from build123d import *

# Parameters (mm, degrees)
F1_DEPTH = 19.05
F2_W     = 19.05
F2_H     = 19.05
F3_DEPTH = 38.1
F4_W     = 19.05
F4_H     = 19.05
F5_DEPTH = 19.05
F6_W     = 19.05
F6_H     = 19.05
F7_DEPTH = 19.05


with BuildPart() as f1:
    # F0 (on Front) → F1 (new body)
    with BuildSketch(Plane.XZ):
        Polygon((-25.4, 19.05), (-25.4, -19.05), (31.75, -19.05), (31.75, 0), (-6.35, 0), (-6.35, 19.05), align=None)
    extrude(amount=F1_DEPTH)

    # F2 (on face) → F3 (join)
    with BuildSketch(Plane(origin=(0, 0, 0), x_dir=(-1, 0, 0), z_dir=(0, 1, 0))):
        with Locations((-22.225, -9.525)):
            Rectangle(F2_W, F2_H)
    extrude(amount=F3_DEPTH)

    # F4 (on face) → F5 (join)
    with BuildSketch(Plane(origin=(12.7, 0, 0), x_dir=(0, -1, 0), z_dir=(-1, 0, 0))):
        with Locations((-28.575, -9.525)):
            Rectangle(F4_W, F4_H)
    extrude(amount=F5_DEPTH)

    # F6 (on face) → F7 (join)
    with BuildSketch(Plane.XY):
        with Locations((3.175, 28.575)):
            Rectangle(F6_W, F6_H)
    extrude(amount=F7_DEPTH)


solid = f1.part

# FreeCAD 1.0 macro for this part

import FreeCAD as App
import Part
import Sketcher

V = App.Vector
Q = App.Units.Quantity


def add_polygon(sketch, points):
    """Adds a closed chain of lines whose ends are joined by coincident constraints."""
    first, n = sketch.GeometryCount, len(points)
    for a, b in zip(points, points[1:] + points[:1]):
        sketch.addGeometry(Part.LineSegment(App.Vector(*a, 0), App.Vector(*b, 0)), False)
    for i in range(n):
        sketch.addConstraint(Sketcher.Constraint("Coincident", first + i, 2, first + (i + 1) % n, 1))

doc = App.newDocument("Part")
body = doc.addObject("PartDesign::Body", "Body")

sketch1 = doc.addObject("Sketcher::SketchObject", "Sketch")
body.addObject(sketch1)
sketch1.AttachmentSupport = (doc.XZ_Plane, [""])
sketch1.MapMode = "FlatFace"
add_polygon(sketch1, [(-25, 19), (-25, -19), (32, -19), (32, 0), (-6, 0), (-6, 19)])
sketch1.addConstraint([
    Sketcher.Constraint("Vertical", 0),
    Sketcher.Constraint("Horizontal", 1),
    Sketcher.Constraint("Vertical", 2),
    Sketcher.Constraint("Horizontal", 3),
    Sketcher.Constraint("Vertical", 4),
    Sketcher.Constraint("Horizontal", 5),
    Sketcher.Constraint("PointOnObject", 2, 2, -1),
    Sketcher.Constraint("Equal", 3, 0),
    Sketcher.Constraint("Equal", 5, 2),
    Sketcher.Constraint("Equal", 2, 4),
    Sketcher.Constraint("DistanceX", 3, 2, 3, 1, Q("1.5 in")),
    Sketcher.Constraint("DistanceX", 0, 2, -1, 1, Q("1 in")),
])
pad1 = doc.addObject("PartDesign::Pad", "Pad")
body.addObject(pad1)
pad1.Profile = sketch1
pad1.Length = Q("0.75 in")

sketch2 = doc.addObject("Sketcher::SketchObject", "Sketch001")
body.addObject(sketch2)
sketch2.AttachmentSupport = (doc.XZ_Plane, [""])
sketch2.MapMode = "FlatFace"
add_polygon(sketch2, [(32, 0), (32, -19), (13, -19), (13, 0)])
sketch2.addConstraint([
    Sketcher.Constraint("Vertical", 0),
    Sketcher.Constraint("Horizontal", 1),
    Sketcher.Constraint("Vertical", 2),
    Sketcher.Constraint("Horizontal", 3),
    Sketcher.Constraint("PointOnObject", 2, 2, -1),
    Sketcher.Constraint("Equal", 3, 0),
    Sketcher.Constraint("DistanceX", 1, 2, 1, 1, Q("0.75 in")),
    Sketcher.Constraint("DistanceX", -1, 1, 1, 2, Q("0.5 in")),
])
pad2 = doc.addObject("PartDesign::Pad", "Pad001")
body.addObject(pad2)
pad2.Profile = sketch2
pad2.Length = Q("1.5 in")
pad2.Reversed = True

sketch3 = doc.addObject("Sketcher::SketchObject", "Sketch002")
body.addObject(sketch3)
sketch3.AttachmentSupport = (doc.YZ_Plane, [""])
sketch3.MapMode = "FlatFace"
sketch3.AttachmentOffset = App.Placement(V(0, 0, 0.5 * 25.4), App.Rotation())
add_polygon(sketch3, [(38, 0), (38, -19), (19, -19), (19, 0)])
sketch3.addConstraint([
    Sketcher.Constraint("Vertical", 0),
    Sketcher.Constraint("Horizontal", 1),
    Sketcher.Constraint("Vertical", 2),
    Sketcher.Constraint("Horizontal", 3),
    Sketcher.Constraint("PointOnObject", 2, 2, -1),
    Sketcher.Constraint("Equal", 3, 0),
    Sketcher.Constraint("DistanceX", 1, 2, 1, 1, Q("0.75 in")),
    Sketcher.Constraint("DistanceX", -1, 1, 0, 2, Q("1.5 in")),
])
pad3 = doc.addObject("PartDesign::Pad", "Pad002")
body.addObject(pad3)
pad3.Profile = sketch3
pad3.Length = Q("0.75 in")
pad3.Reversed = True

sketch4 = doc.addObject("Sketcher::SketchObject", "Sketch003")
body.addObject(sketch4)
sketch4.AttachmentSupport = (doc.XY_Plane, [""])
sketch4.MapMode = "FlatFace"
add_polygon(sketch4, [(-6, 38), (-6, 19), (13, 19), (13, 38)])
sketch4.addConstraint([
    Sketcher.Constraint("Vertical", 0),
    Sketcher.Constraint("Horizontal", 1),
    Sketcher.Constraint("Vertical", 2),
    Sketcher.Constraint("Horizontal", 3),
    Sketcher.Constraint("Equal", 3, 0),
    Sketcher.Constraint("DistanceX", 1, 1, 1, 2, Q("0.75 in")),
    Sketcher.Constraint("DistanceX", -1, 1, 1, 2, Q("0.5 in")),
    Sketcher.Constraint("DistanceY", -1, 1, 2, 2, Q("1.5 in")),
])
pad4 = doc.addObject("PartDesign::Pad", "Pad003")
body.addObject(pad4)
pad4.Profile = sketch4
pad4.Length = Q("0.75 in")

doc.recompute()
